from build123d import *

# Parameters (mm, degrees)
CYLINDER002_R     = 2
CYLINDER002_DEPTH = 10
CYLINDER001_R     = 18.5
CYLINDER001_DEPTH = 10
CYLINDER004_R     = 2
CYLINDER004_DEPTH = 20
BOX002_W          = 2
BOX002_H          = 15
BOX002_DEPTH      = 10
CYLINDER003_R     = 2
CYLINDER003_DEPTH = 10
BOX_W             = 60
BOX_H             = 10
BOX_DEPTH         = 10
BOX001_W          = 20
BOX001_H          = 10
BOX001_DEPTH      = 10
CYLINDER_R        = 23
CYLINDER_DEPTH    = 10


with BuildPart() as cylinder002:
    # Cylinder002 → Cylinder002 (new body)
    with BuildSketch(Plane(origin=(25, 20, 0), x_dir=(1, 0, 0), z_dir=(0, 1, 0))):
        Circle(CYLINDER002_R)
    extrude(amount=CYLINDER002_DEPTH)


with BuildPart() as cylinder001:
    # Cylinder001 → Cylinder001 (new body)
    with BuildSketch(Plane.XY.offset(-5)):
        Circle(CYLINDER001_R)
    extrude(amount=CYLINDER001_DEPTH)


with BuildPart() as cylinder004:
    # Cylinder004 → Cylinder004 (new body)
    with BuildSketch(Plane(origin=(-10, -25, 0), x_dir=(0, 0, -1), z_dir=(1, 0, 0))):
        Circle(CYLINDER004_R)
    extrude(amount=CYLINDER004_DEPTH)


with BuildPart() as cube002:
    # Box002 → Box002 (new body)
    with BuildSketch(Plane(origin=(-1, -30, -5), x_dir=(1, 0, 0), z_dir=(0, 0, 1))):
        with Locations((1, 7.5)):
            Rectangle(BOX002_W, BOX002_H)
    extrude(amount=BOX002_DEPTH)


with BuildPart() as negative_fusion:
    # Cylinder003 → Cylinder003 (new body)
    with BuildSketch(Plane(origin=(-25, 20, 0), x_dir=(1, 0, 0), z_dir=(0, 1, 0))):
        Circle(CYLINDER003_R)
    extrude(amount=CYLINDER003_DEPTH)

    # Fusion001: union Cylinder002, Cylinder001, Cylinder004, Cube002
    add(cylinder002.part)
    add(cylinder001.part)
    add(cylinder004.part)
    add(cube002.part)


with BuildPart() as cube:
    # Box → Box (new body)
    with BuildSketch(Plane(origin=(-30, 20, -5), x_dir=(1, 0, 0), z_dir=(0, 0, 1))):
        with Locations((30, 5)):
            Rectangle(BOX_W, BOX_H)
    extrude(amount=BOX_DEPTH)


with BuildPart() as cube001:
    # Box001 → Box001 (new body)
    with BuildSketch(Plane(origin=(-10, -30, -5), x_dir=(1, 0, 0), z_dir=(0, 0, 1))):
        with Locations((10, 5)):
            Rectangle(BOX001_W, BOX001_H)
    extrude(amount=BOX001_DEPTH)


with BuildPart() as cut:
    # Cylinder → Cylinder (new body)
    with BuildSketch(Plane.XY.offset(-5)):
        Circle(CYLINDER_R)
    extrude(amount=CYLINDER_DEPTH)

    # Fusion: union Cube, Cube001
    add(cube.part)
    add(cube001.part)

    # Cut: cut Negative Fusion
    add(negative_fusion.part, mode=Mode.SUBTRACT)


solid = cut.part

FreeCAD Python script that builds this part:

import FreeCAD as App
import Part
import Sketcher

V = App.Vector


def add_polygon(sketch, points):
    """Adds a closed chain of lines whose ends are joined by coincident constraints."""
    first, n = sketch.GeometryCount, len(points)
    for a, b in zip(points, points[1:] + points[:1]):
        sketch.addGeometry(Part.LineSegment(App.Vector(*a, 0), App.Vector(*b, 0)), False)
    for i in range(n):
        sketch.addConstraint(Sketcher.Constraint("Coincident", first + i, 2, first + (i + 1) % n, 1))

doc = App.newDocument("Part")
body = doc.addObject("PartDesign::Body", "Body")

# Sketch on XZ plane
sketch1 = doc.addObject("Sketcher::SketchObject", "Sketch")
body.addObject(sketch1)
sketch1.AttachmentSupport = (doc.XZ_Plane, [""])
sketch1.MapMode = "FlatFace"
sketch1.AttachmentOffset = App.Placement(V(0, 0, -20), App.Rotation())
sketch1.addGeometry(Part.Circle(V(25, 0, 0), V(0, 0, 1), 2), False)
sketch1.addConstraint([
    Sketcher.Constraint("PointOnObject", 0, 3, -1),
    Sketcher.Constraint("Diameter", 0, 4.0),
    Sketcher.Constraint("DistanceX", -1, 1, 0, 3, 25.0),
])
pad1 = doc.addObject("PartDesign::Pad", "Pad")
body.addObject(pad1)
pad1.Profile = sketch1
pad1.Length = 10
pad1.Reversed = True
body2 = doc.addObject("PartDesign::Body", "Body001")

# Sketch on XY plane
sketch2 = doc.addObject("Sketcher::SketchObject", "Sketch001")
body2.addObject(sketch2)
sketch2.AttachmentSupport = (doc.getObject("XY_Plane001"), [""])
sketch2.MapMode = "FlatFace"
sketch2.AttachmentOffset = App.Placement(V(0, 0, -5), App.Rotation())
sketch2.addGeometry(Part.Circle(V(0, 0, 0), V(0, 0, 1), 18), False)
sketch2.addConstraint([
    Sketcher.Constraint("Coincident", 0, 3, -1, 1),
    Sketcher.Constraint("Diameter", 0, 37.0),
])
pad2 = doc.addObject("PartDesign::Pad", "Pad001")
body2.addObject(pad2)
pad2.Profile = sketch2
pad2.Length = 10
body3 = doc.addObject("PartDesign::Body", "Body002")

# Sketch on YZ plane
sketch3 = doc.addObject("Sketcher::SketchObject", "Sketch002")
body3.addObject(sketch3)
sketch3.AttachmentSupport = (doc.getObject("YZ_Plane002"), [""])
sketch3.MapMode = "FlatFace"
sketch3.AttachmentOffset = App.Placement(V(0, 0, -10), App.Rotation())
sketch3.addGeometry(Part.Circle(V(-25, 0, 0), V(0, 0, 1), 2), False)
sketch3.addConstraint([
    Sketcher.Constraint("PointOnObject", 0, 3, -1),
    Sketcher.Constraint("Diameter", 0, 4.0),
    Sketcher.Constraint("DistanceX", 0, 3, -1, 1, 25.0),
])
pad3 = doc.addObject("PartDesign::Pad", "Pad002")
body3.addObject(pad3)
pad3.Profile = sketch3
pad3.Length = 20
body4 = doc.addObject("PartDesign::Body", "Body003")

# Sketch on XY plane
sketch4 = doc.addObject("Sketcher::SketchObject", "Sketch003")
body4.addObject(sketch4)
sketch4.AttachmentSupport = (doc.getObject("XY_Plane003"), [""])
sketch4.MapMode = "FlatFace"
sketch4.AttachmentOffset = App.Placement(V(0, 0, -5), App.Rotation())
add_polygon(sketch4, [(-1, -15), (-1, -30), (1, -30), (1, -15)])  # lines 0-3
sketch4.addConstraint([
    Sketcher.Constraint("Vertical", 0),
    Sketcher.Constraint("Horizontal", 1),
    Sketcher.Constraint("Vertical", 2),
    Sketcher.Constraint("Horizontal", 3),
    Sketcher.Constraint("DistanceX", 1, 1, 1, 2, 2.0),
    Sketcher.Constraint("DistanceY", 0, 2, 0, 1, 15.0),
    Sketcher.Constraint("DistanceX", 0, 2, -1, 1, 1.0),
    Sketcher.Constraint("DistanceY", 0, 2, -1, 1, 30.0),
])
pad4 = doc.addObject("PartDesign::Pad", "Pad003")
body4.addObject(pad4)
pad4.Profile = sketch4
pad4.Length = 10
body5 = doc.addObject("PartDesign::Body", "Body004")
body5.AllowCompound = True

# Sketch on XZ plane
sketch5 = doc.addObject("Sketcher::SketchObject", "Sketch004")
body5.addObject(sketch5)
sketch5.AttachmentSupport = (doc.getObject("XZ_Plane004"), [""])
sketch5.MapMode = "FlatFace"
sketch5.AttachmentOffset = App.Placement(V(0, 0, -20), App.Rotation())
sketch5.addGeometry(Part.Circle(V(-25, 0, 0), V(0, 0, 1), 2), False)
sketch5.addConstraint([
    Sketcher.Constraint("PointOnObject", 0, 3, -1),
    Sketcher.Constraint("Diameter", 0, 4.0),
    Sketcher.Constraint("DistanceX", 0, 3, -1, 1, 25.0),
])
pad5 = doc.addObject("PartDesign::Pad", "Pad004")
body5.addObject(pad5)
pad5.Profile = sketch5
pad5.Length = 10
pad5.Reversed = True
doc.recompute()

boolean = doc.addObject("PartDesign::Boolean", "Boolean")
body5.addObject(boolean)
boolean.Type = "Fuse"
boolean.addObjects([body])
doc.recompute()

boolean2 = doc.addObject("PartDesign::Boolean", "Boolean001")
body5.addObject(boolean2)
boolean2.Type = "Fuse"
boolean2.addObjects([body2])
doc.recompute()

boolean3 = doc.addObject("PartDesign::Boolean", "Boolean002")
body5.addObject(boolean3)
boolean3.Type = "Fuse"
boolean3.addObjects([body3])
doc.recompute()

boolean4 = doc.addObject("PartDesign::Boolean", "Boolean003")
body5.addObject(boolean4)
boolean4.Type = "Fuse"
boolean4.addObjects([body4])
body6 = doc.addObject("PartDesign::Body", "Body005")

# Sketch on XY plane
sketch6 = doc.addObject("Sketcher::SketchObject", "Sketch005")
body6.addObject(sketch6)
sketch6.AttachmentSupport = (doc.getObject("XY_Plane005"), [""])
sketch6.MapMode = "FlatFace"
sketch6.AttachmentOffset = App.Placement(V(0, 0, -5), App.Rotation())
add_polygon(sketch6, [(-30, 30), (-30, 20), (30, 20), (30, 30)])  # lines 0-3
sketch6.addConstraint([
    Sketcher.Constraint("Vertical", 0),
    Sketcher.Constraint("Horizontal", 1),
    Sketcher.Constraint("Vertical", 2),
    Sketcher.Constraint("Horizontal", 3),
    Sketcher.Constraint("DistanceX", 1, 1, 1, 2, 60.0),
    Sketcher.Constraint("DistanceY", 0, 2, 0, 1, 10.0),
    Sketcher.Constraint("DistanceX", 0, 2, -1, 1, 30.0),
    Sketcher.Constraint("DistanceY", -1, 1, 0, 2, 20.0),
])
pad6 = doc.addObject("PartDesign::Pad", "Pad005")
body6.addObject(pad6)
pad6.Profile = sketch6
pad6.Length = 10
body7 = doc.addObject("PartDesign::Body", "Body006")

# Sketch on XY plane
sketch7 = doc.addObject("Sketcher::SketchObject", "Sketch006")
body7.addObject(sketch7)
sketch7.AttachmentSupport = (doc.getObject("XY_Plane006"), [""])
sketch7.MapMode = "FlatFace"
sketch7.AttachmentOffset = App.Placement(V(0, 0, -5), App.Rotation())
add_polygon(sketch7, [(-10, -20), (-10, -30), (10, -30), (10, -20)])  # lines 0-3
sketch7.addConstraint([
    Sketcher.Constraint("Vertical", 0),
    Sketcher.Constraint("Horizontal", 1),
    Sketcher.Constraint("Vertical", 2),
    Sketcher.Constraint("Horizontal", 3),
    Sketcher.Constraint("DistanceX", 1, 1, 1, 2, 20.0),
    Sketcher.Constraint("DistanceY", 0, 2, 0, 1, 10.0),
    Sketcher.Constraint("DistanceX", 0, 2, -1, 1, 10.0),
    Sketcher.Constraint("DistanceY", 0, 2, -1, 1, 30.0),
])
pad7 = doc.addObject("PartDesign::Pad", "Pad006")
body7.addObject(pad7)
pad7.Profile = sketch7
pad7.Length = 10
body8 = doc.addObject("PartDesign::Body", "Body007")

# Sketch on XY plane
sketch8 = doc.addObject("Sketcher::SketchObject", "Sketch007")
body8.addObject(sketch8)
sketch8.AttachmentSupport = (doc.getObject("XY_Plane007"), [""])
sketch8.MapMode = "FlatFace"
sketch8.AttachmentOffset = App.Placement(V(0, 0, -5), App.Rotation())
sketch8.addGeometry(Part.Circle(V(0, 0, 0), V(0, 0, 1), 23), False)
sketch8.addConstraint([
    Sketcher.Constraint("Coincident", 0, 3, -1, 1),
    Sketcher.Constraint("Diameter", 0, 46.0),
])
pad8 = doc.addObject("PartDesign::Pad", "Pad007")
body8.addObject(pad8)
pad8.Profile = sketch8
pad8.Length = 10
doc.recompute()

boolean5 = doc.addObject("PartDesign::Boolean", "Boolean004")
body8.addObject(boolean5)
boolean5.Type = "Fuse"
boolean5.addObjects([body6])
doc.recompute()

boolean6 = doc.addObject("PartDesign::Boolean", "Boolean005")
body8.addObject(boolean6)
boolean6.Type = "Fuse"
boolean6.addObjects([body7])
doc.recompute()

boolean7 = doc.addObject("PartDesign::Boolean", "Boolean006")
body8.addObject(boolean7)
boolean7.Type = "Cut"
boolean7.addObjects([body5])

doc.recompute()
